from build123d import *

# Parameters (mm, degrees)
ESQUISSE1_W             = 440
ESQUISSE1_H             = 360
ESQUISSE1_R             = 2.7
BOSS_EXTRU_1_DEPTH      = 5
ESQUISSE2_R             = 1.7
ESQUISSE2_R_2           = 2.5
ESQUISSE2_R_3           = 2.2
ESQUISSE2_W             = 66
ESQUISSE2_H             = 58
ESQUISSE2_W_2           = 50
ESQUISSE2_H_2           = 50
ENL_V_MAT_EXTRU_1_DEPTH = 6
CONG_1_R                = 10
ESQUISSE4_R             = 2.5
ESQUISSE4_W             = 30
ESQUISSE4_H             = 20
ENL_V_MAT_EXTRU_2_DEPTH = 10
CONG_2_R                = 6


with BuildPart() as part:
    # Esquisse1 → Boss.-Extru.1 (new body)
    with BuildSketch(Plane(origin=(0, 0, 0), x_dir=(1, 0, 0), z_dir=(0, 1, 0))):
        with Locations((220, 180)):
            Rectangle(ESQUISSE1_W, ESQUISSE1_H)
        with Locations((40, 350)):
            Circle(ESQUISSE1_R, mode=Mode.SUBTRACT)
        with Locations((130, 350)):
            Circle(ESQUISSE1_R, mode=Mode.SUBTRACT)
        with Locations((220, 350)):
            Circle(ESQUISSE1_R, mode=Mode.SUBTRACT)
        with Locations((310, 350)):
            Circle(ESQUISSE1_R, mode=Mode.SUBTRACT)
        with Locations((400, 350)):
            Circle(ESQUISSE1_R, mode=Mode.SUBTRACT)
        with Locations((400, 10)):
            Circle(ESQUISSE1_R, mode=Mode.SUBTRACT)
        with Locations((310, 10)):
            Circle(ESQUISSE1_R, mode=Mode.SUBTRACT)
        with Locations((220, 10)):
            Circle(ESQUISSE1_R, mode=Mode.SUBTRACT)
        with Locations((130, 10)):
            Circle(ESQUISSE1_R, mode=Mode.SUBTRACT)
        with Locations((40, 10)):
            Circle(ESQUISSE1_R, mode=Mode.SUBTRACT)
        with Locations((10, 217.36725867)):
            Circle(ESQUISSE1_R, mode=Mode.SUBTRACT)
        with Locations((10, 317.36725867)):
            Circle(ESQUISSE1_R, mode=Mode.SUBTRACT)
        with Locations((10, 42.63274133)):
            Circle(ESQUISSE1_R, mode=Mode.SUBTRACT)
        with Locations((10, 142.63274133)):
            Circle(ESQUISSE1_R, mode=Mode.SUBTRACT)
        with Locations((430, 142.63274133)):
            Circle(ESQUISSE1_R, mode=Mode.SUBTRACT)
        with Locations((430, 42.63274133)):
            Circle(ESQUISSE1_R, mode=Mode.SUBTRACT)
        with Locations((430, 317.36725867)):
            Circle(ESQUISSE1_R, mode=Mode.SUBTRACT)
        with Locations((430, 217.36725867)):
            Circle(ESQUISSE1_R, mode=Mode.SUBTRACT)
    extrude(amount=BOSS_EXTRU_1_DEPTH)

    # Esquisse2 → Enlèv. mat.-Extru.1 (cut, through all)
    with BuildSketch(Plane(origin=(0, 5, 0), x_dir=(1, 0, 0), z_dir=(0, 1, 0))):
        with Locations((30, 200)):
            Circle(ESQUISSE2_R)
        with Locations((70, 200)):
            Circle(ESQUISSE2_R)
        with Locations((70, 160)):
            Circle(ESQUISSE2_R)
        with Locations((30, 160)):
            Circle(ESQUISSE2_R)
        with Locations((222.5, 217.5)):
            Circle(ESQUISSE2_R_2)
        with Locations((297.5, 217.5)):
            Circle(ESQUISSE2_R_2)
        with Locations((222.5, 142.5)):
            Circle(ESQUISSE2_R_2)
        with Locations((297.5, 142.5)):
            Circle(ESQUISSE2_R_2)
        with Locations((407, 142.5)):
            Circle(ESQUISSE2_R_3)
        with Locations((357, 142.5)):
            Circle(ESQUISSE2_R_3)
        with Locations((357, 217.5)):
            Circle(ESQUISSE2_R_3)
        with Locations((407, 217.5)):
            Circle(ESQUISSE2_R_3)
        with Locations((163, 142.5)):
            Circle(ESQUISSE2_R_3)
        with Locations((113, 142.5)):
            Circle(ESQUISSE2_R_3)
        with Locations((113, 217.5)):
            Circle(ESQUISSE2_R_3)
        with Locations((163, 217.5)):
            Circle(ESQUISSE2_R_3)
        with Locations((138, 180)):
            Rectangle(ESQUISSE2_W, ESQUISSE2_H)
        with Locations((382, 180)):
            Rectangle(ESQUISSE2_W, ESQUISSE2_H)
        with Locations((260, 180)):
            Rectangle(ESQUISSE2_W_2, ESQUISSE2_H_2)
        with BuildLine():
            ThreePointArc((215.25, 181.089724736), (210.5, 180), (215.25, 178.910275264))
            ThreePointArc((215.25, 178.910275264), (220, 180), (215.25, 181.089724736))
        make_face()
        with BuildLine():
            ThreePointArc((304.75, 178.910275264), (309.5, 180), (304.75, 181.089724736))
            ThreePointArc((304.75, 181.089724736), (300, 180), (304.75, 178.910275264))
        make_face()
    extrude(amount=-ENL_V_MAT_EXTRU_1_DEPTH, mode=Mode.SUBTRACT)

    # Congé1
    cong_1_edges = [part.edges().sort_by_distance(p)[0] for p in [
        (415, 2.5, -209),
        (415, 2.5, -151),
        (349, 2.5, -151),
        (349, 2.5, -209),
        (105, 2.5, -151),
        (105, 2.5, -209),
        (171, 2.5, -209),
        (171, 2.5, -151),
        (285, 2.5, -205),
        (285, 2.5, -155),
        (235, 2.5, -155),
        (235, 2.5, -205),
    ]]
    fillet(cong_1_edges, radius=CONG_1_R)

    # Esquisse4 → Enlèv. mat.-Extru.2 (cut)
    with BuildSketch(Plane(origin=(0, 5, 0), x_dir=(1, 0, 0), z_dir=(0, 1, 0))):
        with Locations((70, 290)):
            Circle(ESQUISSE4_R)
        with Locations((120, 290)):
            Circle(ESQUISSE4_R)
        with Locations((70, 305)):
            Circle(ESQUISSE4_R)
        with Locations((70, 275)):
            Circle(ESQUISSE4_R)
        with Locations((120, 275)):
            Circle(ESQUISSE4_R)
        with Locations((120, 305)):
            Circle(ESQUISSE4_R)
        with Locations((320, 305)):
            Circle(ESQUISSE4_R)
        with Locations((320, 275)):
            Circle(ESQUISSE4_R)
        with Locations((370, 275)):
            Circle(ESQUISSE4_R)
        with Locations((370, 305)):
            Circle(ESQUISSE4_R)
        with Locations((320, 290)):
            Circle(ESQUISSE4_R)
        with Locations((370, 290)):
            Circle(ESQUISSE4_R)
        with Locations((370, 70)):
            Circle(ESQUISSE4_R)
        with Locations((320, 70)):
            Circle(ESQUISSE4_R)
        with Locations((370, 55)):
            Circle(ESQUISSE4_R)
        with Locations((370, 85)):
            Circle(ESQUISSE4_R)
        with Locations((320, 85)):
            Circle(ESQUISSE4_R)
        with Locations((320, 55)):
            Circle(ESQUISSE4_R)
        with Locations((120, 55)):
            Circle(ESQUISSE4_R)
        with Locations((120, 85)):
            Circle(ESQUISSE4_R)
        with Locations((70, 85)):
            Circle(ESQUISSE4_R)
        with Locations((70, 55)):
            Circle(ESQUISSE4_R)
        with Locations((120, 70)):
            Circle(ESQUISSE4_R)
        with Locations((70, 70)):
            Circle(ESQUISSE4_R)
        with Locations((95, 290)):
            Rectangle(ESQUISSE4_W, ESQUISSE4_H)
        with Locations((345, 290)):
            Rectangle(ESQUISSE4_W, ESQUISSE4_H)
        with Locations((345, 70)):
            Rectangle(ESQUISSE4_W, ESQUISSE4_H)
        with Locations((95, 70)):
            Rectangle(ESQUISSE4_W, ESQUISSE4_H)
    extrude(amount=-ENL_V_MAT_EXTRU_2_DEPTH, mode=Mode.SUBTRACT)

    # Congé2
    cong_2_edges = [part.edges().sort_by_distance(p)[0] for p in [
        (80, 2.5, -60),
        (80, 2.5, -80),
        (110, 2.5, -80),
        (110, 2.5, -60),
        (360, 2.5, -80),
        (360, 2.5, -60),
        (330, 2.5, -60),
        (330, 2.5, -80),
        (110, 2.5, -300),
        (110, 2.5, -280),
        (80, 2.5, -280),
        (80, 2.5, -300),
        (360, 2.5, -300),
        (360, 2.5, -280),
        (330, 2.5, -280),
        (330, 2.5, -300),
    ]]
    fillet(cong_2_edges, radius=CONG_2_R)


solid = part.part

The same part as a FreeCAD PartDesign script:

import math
import FreeCAD as App
import Part
import Sketcher

V = App.Vector
Q = App.Units.Quantity


def edges_at(feature, points):
    """Names of the edges that pass closest to the given points."""
    edges = feature.Shape.Edges
    near = lambda p: min(range(len(edges)), key=lambda i: edges[i].distToShape(Part.Vertex(*p))[0])
    return sorted({f"Edge{near(p) + 1}" for p in points})


def add_polygon(sketch, points):
    """Adds a closed chain of lines whose ends are joined by coincident constraints."""
    first, n = sketch.GeometryCount, len(points)
    for a, b in zip(points, points[1:] + points[:1]):
        sketch.addGeometry(Part.LineSegment(App.Vector(*a, 0), App.Vector(*b, 0)), False)
    for i in range(n):
        sketch.addConstraint(Sketcher.Constraint("Coincident", first + i, 2, first + (i + 1) % n, 1))

doc = App.newDocument("Part")
body = doc.addObject("PartDesign::Body", "Body")

# Sketch on XZ plane
sketch1 = body.newObject("Sketcher::SketchObject", "Sketch")
sketch1.AttachmentSupport = (doc.getObject("XZ_Plane"), [""])
sketch1.MapMode = "FlatFace"
add_polygon(sketch1, [(0, -360), (0, 0), (440, 0), (440, -360)])  # lines 0-3
sketch1.addGeometry(Part.Circle(V(40, -10, 0), V(0, 0, 1), 2.7), False)  # 4
sketch1.addGeometry(Part.Circle(V(10, -42.632741, 0), V(0, 0, 1), 2.7), False)  # 5
sketch1.addGeometry(Part.Circle(V(130, -10, 0), V(0, 0, 1), 2.7), False)  # 6
sketch1.addGeometry(Part.Circle(V(10, -142.632741, 0), V(0, 0, 1), 2.7), False)  # 7
sketch1.addGeometry(Part.Circle(V(220, -10, 0), V(0, 0, 1), 2.7), False)  # 8
sketch1.addGeometry(Part.Circle(V(310, -10, 0), V(0, 0, 1), 2.7), False)  # 9
sketch1.addGeometry(Part.Circle(V(400, -10, 0), V(0, 0, 1), 2.7), False)  # 10
sketch1.addGeometry(Part.Circle(V(430, -42.632741, 0), V(0, 0, 1), 2.7), False)  # 11
sketch1.addGeometry(Part.Circle(V(430, -142.632741, 0), V(0, 0, 1), 2.7), False)  # 12
sketch1.addGeometry(Part.Circle(V(10, -217.367259, 0), V(0, 0, 1), 2.7), False)  # 13
sketch1.addGeometry(Part.Circle(V(10, -317.367259, 0), V(0, 0, 1), 2.7), False)  # 14
sketch1.addGeometry(Part.Circle(V(40, -350, 0), V(0, 0, 1), 2.7), False)  # 15
sketch1.addGeometry(Part.Circle(V(130, -350, 0), V(0, 0, 1), 2.7), False)  # 16
sketch1.addGeometry(Part.Circle(V(430, -217.367259, 0), V(0, 0, 1), 2.7), False)  # 17
sketch1.addGeometry(Part.Circle(V(220, -350, 0), V(0, 0, 1), 2.7), False)  # 18
sketch1.addGeometry(Part.Circle(V(310, -350, 0), V(0, 0, 1), 2.7), False)  # 19
sketch1.addGeometry(Part.Circle(V(430, -317.367259, 0), V(0, 0, 1), 2.7), False)  # 20
sketch1.addGeometry(Part.Circle(V(400, -350, 0), V(0, 0, 1), 2.7), False)  # 21
sketch1.addConstraint([
    Sketcher.Constraint("Vertical", 0),
    Sketcher.Constraint("Horizontal", 1),
    Sketcher.Constraint("Vertical", 2),
    Sketcher.Constraint("Horizontal", 3),
    Sketcher.Constraint("Coincident", 0, 2, -1, 1),
    Sketcher.Constraint("Equal", 4, 5),
    Sketcher.Constraint("Equal", 5, 6),
    Sketcher.Constraint("Equal", 6, 7),
    Sketcher.Constraint("Equal", 7, 8),
    Sketcher.Constraint("Equal", 8, 9),
    Sketcher.Constraint("Equal", 9, 10),
    Sketcher.Constraint("Equal", 10, 11),
    Sketcher.Constraint("Equal", 11, 12),
    Sketcher.Constraint("Equal", 12, 13),
    Sketcher.Constraint("Equal", 13, 14),
    Sketcher.Constraint("Equal", 14, 15),
    Sketcher.Constraint("Equal", 15, 16),
    Sketcher.Constraint("Equal", 16, 17),
    Sketcher.Constraint("Equal", 17, 18),
    Sketcher.Constraint("Equal", 18, 19),
    Sketcher.Constraint("Equal", 19, 20),
    Sketcher.Constraint("Equal", 20, 21),
    Sketcher.Constraint("Horizontal", 4, 3, 6, 3),
    Sketcher.Constraint("Horizontal", 6, 3, 8, 3),
    Sketcher.Constraint("Horizontal", 8, 3, 9, 3),
    Sketcher.Constraint("Horizontal", 9, 3, 10, 3),
    Sketcher.Constraint("Horizontal", 5, 3, 11, 3),
    Sketcher.Constraint("Horizontal", 7, 3, 12, 3),
    Sketcher.Constraint("Horizontal", 15, 3, 16, 3),
    Sketcher.Constraint("Horizontal", 13, 3, 17, 3),
    Sketcher.Constraint("Horizontal", 16, 3, 18, 3),
    Sketcher.Constraint("Horizontal", 18, 3, 19, 3),
    Sketcher.Constraint("Horizontal", 14, 3, 20, 3),
    Sketcher.Constraint("Horizontal", 19, 3, 21, 3),
    Sketcher.Constraint("Vertical", 5, 3, 7, 3),
    Sketcher.Constraint("Vertical", 11, 3, 12, 3),
    Sketcher.Constraint("Vertical", 7, 3, 13, 3),
    Sketcher.Constraint("Vertical", 13, 3, 14, 3),
    Sketcher.Constraint("Vertical", 4, 3, 15, 3),
    Sketcher.Constraint("Vertical", 6, 3, 16, 3),
    Sketcher.Constraint("Vertical", 12, 3, 17, 3),
    Sketcher.Constraint("Vertical", 8, 3, 18, 3),
    Sketcher.Constraint("Vertical", 9, 3, 19, 3),
    Sketcher.Constraint("Vertical", 17, 3, 20, 3),
    Sketcher.Constraint("Vertical", 10, 3, 21, 3),
    Sketcher.Constraint("Diameter", 4, Q("5.4 mm")),
    Sketcher.Constraint("DistanceX", 1, 1, 1, 2, Q("440 mm")),
    Sketcher.Constraint("DistanceY", 0, 1, 0, 2, Q("360 mm")),
    Sketcher.Constraint("DistanceX", -1, 1, 4, 3, Q("40 mm")),
    Sketcher.Constraint("DistanceY", 4, 3, -1, 1, Q("10 mm")),
    Sketcher.Constraint("DistanceX", -1, 1, 5, 3, Q("10 mm")),
    Sketcher.Constraint("DistanceX", -1, 1, 6, 3, Q("130 mm")),
    Sketcher.Constraint("DistanceX", -1, 1, 8, 3, Q("220 mm")),
    Sketcher.Constraint("DistanceX", -1, 1, 9, 3, Q("310 mm")),
    Sketcher.Constraint("DistanceX", -1, 1, 10, 3, Q("400 mm")),
    Sketcher.Constraint("DistanceX", -1, 1, 11, 3, Q("430 mm")),
    Sketcher.Constraint("DistanceY", 15, 3, -1, 1, Q("350 mm")),
    Sketcher.Constraint("DistanceY", 7, 3, 5, 3, Q("100 mm")),
    Sketcher.Constraint("DistanceY", 14, 3, 13, 3, Q("100 mm")),
    Sketcher.Constraint("DistanceY", 5, 3, -1, 1, Q("42.632741 mm")),
    Sketcher.Constraint("DistanceY", 13, 3, -1, 1, Q("217.367259 mm")),
])
pad1 = body.newObject("PartDesign::Pad", "Pad")
pad1.Profile = sketch1
pad1.Length = 5
pad1.Reversed = True

# Sketch on XZ plane
sketch2 = body.newObject("Sketcher::SketchObject", "Sketch001")
sketch2.AttachmentSupport = (doc.getObject("XZ_Plane"), [""])
sketch2.MapMode = "FlatFace"
sketch2.AttachmentOffset = App.Placement(V(0, 0, -5), App.Rotation())
sketch2.addGeometry(Part.Circle(V(30, -200, 0), V(0, 0, 1), 1.7), False)  # 0
sketch2.addGeometry(Part.Circle(V(70, -200, 0), V(0, 0, 1), 1.7), False)  # 1
sketch2.addGeometry(Part.Circle(V(70, -160, 0), V(0, 0, 1), 1.7), False)  # 2
sketch2.addGeometry(Part.Circle(V(30, -160, 0), V(0, 0, 1), 1.7), False)  # 3
sketch2.addGeometry(Part.Circle(V(222.5, -217.5, 0), V(0, 0, 1), 2.5), False)  # 4
sketch2.addGeometry(Part.Circle(V(297.5, -217.5, 0), V(0, 0, 1), 2.5), False)  # 5
sketch2.addGeometry(Part.Circle(V(222.5, -142.5, 0), V(0, 0, 1), 2.5), False)  # 6
sketch2.addGeometry(Part.Circle(V(297.5, -142.5, 0), V(0, 0, 1), 2.5), False)  # 7
sketch2.addGeometry(Part.Circle(V(407, -142.5, 0), V(0, 0, 1), 2.2), False)  # 8
sketch2.addGeometry(Part.Circle(V(357, -142.5, 0), V(0, 0, 1), 2.2), False)  # 9
sketch2.addGeometry(Part.Circle(V(357, -217.5, 0), V(0, 0, 1), 2.2), False)  # 10
sketch2.addGeometry(Part.Circle(V(407, -217.5, 0), V(0, 0, 1), 2.2), False)  # 11
sketch2.addGeometry(Part.Circle(V(163, -142.5, 0), V(0, 0, 1), 2.2), False)  # 12
sketch2.addGeometry(Part.Circle(V(113, -142.5, 0), V(0, 0, 1), 2.2), False)  # 13
sketch2.addGeometry(Part.Circle(V(113, -217.5, 0), V(0, 0, 1), 2.2), False)  # 14
sketch2.addGeometry(Part.Circle(V(163, -217.5, 0), V(0, 0, 1), 2.2), False)  # 15
add_polygon(sketch2, [(105, -209), (105, -151), (171, -151), (171, -209)])  # lines 16-19
add_polygon(sketch2, [(349, -209), (349, -151), (415, -151), (415, -209)])  # lines 20-23
add_polygon(sketch2, [(235, -205), (235, -155), (285, -155), (285, -205)])  # lines 24-27
sketch2.addGeometry(Part.ArcOfCircle(Part.Circle(V(213, -180, 0), V(0, 0, 1), 2.5), math.radians(25.841933), math.radians(334.158067)), False)  # 28
sketch2.addGeometry(Part.ArcOfCircle(Part.Circle(V(217.5, -180, 0), V(0, 0, 1), 2.5), math.radians(-154.158067), math.radians(154.158067)), False)  # 29
sketch2.addGeometry(Part.ArcOfCircle(Part.Circle(V(307, -180, 0), V(0, 0, 1), 2.5), math.radians(-154.158067), math.radians(154.158067)), False)  # 30
sketch2.addGeometry(Part.ArcOfCircle(Part.Circle(V(302.5, -180, 0), V(0, 0, 1), 2.5), math.radians(25.841933), math.radians(334.158067)), False)  # 31
sketch2.addConstraint([
    Sketcher.Constraint("Coincident", 28, 1, 29, 2),
    Sketcher.Constraint("Coincident", 29, 1, 28, 2),
    Sketcher.Constraint("Coincident", 30, 1, 31, 2),
    Sketcher.Constraint("Coincident", 31, 1, 30, 2),
    Sketcher.Constraint("Vertical", 16),
    Sketcher.Constraint("Horizontal", 17),
    Sketcher.Constraint("Vertical", 18),
    Sketcher.Constraint("Horizontal", 19),
    Sketcher.Constraint("Vertical", 20),
    Sketcher.Constraint("Horizontal", 21),
    Sketcher.Constraint("Vertical", 22),
    Sketcher.Constraint("Horizontal", 23),
    Sketcher.Constraint("Vertical", 24),
    Sketcher.Constraint("Horizontal", 25),
    Sketcher.Constraint("Vertical", 26),
    Sketcher.Constraint("Horizontal", 27),
    Sketcher.Constraint("Equal", 0, 1),
    Sketcher.Constraint("Equal", 1, 2),
    Sketcher.Constraint("Equal", 2, 3),
    Sketcher.Constraint("Equal", 4, 5),
    Sketcher.Constraint("Equal", 5, 6),
    Sketcher.Constraint("Equal", 6, 7),
    Sketcher.Constraint("Equal", 8, 9),
    Sketcher.Constraint("Equal", 9, 10),
    Sketcher.Constraint("Equal", 10, 11),
    Sketcher.Constraint("Equal", 11, 12),
    Sketcher.Constraint("Equal", 12, 13),
    Sketcher.Constraint("Equal", 13, 14),
    Sketcher.Constraint("Equal", 14, 15),
    Sketcher.Constraint("Equal", 7, 28),
    Sketcher.Constraint("Equal", 28, 29),
    Sketcher.Constraint("Equal", 29, 30),
    Sketcher.Constraint("Equal", 30, 31),
    Sketcher.Constraint("Horizontal", 0, 3, 1, 3),
    Sketcher.Constraint("Horizontal", 2, 3, 3, 3),
    Sketcher.Constraint("Horizontal", 4, 3, 5, 3),
    Sketcher.Constraint("Horizontal", 6, 3, 7, 3),
    Sketcher.Constraint("Horizontal", 7, 3, 8, 3),
    Sketcher.Constraint("Horizontal", 8, 3, 9, 3),
    Sketcher.Constraint("Horizontal", 5, 3, 10, 3),
    Sketcher.Constraint("Horizontal", 10, 3, 11, 3),
    Sketcher.Constraint("Horizontal", 9, 3, 12, 3),
    Sketcher.Constraint("Horizontal", 12, 3, 13, 3),
    Sketcher.Constraint("Horizontal", 11, 3, 14, 3),
    Sketcher.Constraint("Horizontal", 14, 3, 15, 3),
    Sketcher.Constraint("Horizontal", 28, 3, 29, 3),
    Sketcher.Constraint("Horizontal", 29, 3, 30, 3),
    Sketcher.Constraint("Horizontal", 30, 3, 31, 3),
    Sketcher.Constraint("Horizontal", 17, 2, 20, 2),
    Sketcher.Constraint("Horizontal", 19, 2, 22, 2),
    Sketcher.Constraint("Horizontal", 29, 1, 30, 1),
    Sketcher.Constraint("Vertical", 1, 3, 2, 3),
    Sketcher.Constraint("Vertical", 0, 3, 3, 3),
    Sketcher.Constraint("Vertical", 4, 3, 6, 3),
    Sketcher.Constraint("Vertical", 5, 3, 7, 3),
    Sketcher.Constraint("Vertical", 9, 3, 10, 3),
    Sketcher.Constraint("Vertical", 8, 3, 11, 3),
    Sketcher.Constraint("Vertical", 13, 3, 14, 3),
    Sketcher.Constraint("Vertical", 12, 3, 15, 3),
    Sketcher.Constraint("Equal", 19, 21),
    Sketcher.Constraint("Equal", 27, 24),
    Sketcher.Constraint("Diameter", 4, Q("5 mm")),
    Sketcher.Constraint("Diameter", 0, Q("3.4 mm")),
    Sketcher.Constraint("Diameter", 8, Q("4.4 mm")),
    Sketcher.Constraint("DistanceX", 17, 1, 17, 2, Q("66 mm")),
    Sketcher.Constraint("DistanceX", 25, 1, 25, 2, Q("50 mm")),
    Sketcher.Constraint("DistanceY", 16, 1, 16, 2, Q("58 mm")),
    Sketcher.Constraint("DistanceX", -1, 1, 0, 3, Q("30 mm")),
    Sketcher.Constraint("DistanceY", 0, 3, -1, 1, Q("200 mm")),
    Sketcher.Constraint("DistanceX", -1, 1, 1, 3, Q("70 mm")),
    Sketcher.Constraint("DistanceY", 2, 3, -1, 1, Q("160 mm")),
    Sketcher.Constraint("DistanceX", -1, 1, 8, 3, Q("407 mm")),
    Sketcher.Constraint("DistanceX", -1, 1, 9, 3, Q("357 mm")),
    Sketcher.Constraint("DistanceX", -1, 1, 12, 3, Q("163 mm")),
    Sketcher.Constraint("DistanceX", -1, 1, 13, 3, Q("113 mm")),
    Sketcher.Constraint("DistanceX", -1, 1, 28, 3, Q("213 mm")),
    Sketcher.Constraint("DistanceY", 28, 3, -1, 1, Q("180 mm")),
    Sketcher.Constraint("DistanceX", -1, 1, 30, 3, Q("307 mm")),
    Sketcher.Constraint("DistanceX", -1, 1, 16, 2, Q("105 mm")),
    Sketcher.Constraint("DistanceY", 16, 2, -1, 1, Q("151 mm")),
    Sketcher.Constraint("DistanceX", -1, 1, 20, 2, Q("349 mm")),
    Sketcher.Constraint("DistanceX", -1, 1, 24, 2, Q("235 mm")),
    Sketcher.Constraint("DistanceY", 24, 2, -1, 1, Q("155 mm")),
    Sketcher.Constraint("DistanceX", 4, 3, 5, 3, Q("75 mm")),
    Sketcher.Constraint("DistanceY", 4, 3, 6, 3, Q("75 mm")),
    Sketcher.Constraint("DistanceX", 29, 3, 4, 3, Q("5 mm")),
    Sketcher.Constraint("DistanceX", 5, 3, 31, 3, Q("5 mm")),
    Sketcher.Constraint("DistanceY", 4, 3, -1, 1, Q("217.5 mm")),
])
pocket1 = body.newObject("PartDesign::Pocket", "Pocket")
pocket1.Profile = sketch2
pocket1.Type = "ThroughAll"
pocket1.Reversed = True
doc.recompute()

fillet = body.newObject("PartDesign::Fillet", "Fillet")
fillet.Base = (pocket1, edges_at(pocket1, [
    (415, 2.5, -209),
    (415, 2.5, -151),
    (349, 2.5, -151),
    (349, 2.5, -209),
    (105, 2.5, -151),
    (105, 2.5, -209),
    (171, 2.5, -209),
    (171, 2.5, -151),
    (285, 2.5, -205),
    (285, 2.5, -155),
    (235, 2.5, -155),
    (235, 2.5, -205),
]))
fillet.Radius = 10

# Sketch on XZ plane
sketch3 = body.newObject("Sketcher::SketchObject", "Sketch002")
sketch3.AttachmentSupport = (doc.getObject("XZ_Plane"), [""])
sketch3.MapMode = "FlatFace"
sketch3.AttachmentOffset = App.Placement(V(0, 0, -5), App.Rotation())
sketch3.addGeometry(Part.Circle(V(70, -290, 0), V(0, 0, 1), 2.5), False)  # 0
sketch3.addGeometry(Part.Circle(V(120, -290, 0), V(0, 0, 1), 2.5), False)  # 1
sketch3.addGeometry(Part.Circle(V(70, -305, 0), V(0, 0, 1), 2.5), False)  # 2
sketch3.addGeometry(Part.Circle(V(70, -275, 0), V(0, 0, 1), 2.5), False)  # 3
sketch3.addGeometry(Part.Circle(V(120, -275, 0), V(0, 0, 1), 2.5), False)  # 4
sketch3.addGeometry(Part.Circle(V(120, -305, 0), V(0, 0, 1), 2.5), False)  # 5
sketch3.addGeometry(Part.Circle(V(320, -305, 0), V(0, 0, 1), 2.5), False)  # 6
sketch3.addGeometry(Part.Circle(V(320, -275, 0), V(0, 0, 1), 2.5), False)  # 7
sketch3.addGeometry(Part.Circle(V(370, -275, 0), V(0, 0, 1), 2.5), False)  # 8
sketch3.addGeometry(Part.Circle(V(370, -305, 0), V(0, 0, 1), 2.5), False)  # 9
sketch3.addGeometry(Part.Circle(V(320, -290, 0), V(0, 0, 1), 2.5), False)  # 10
sketch3.addGeometry(Part.Circle(V(370, -290, 0), V(0, 0, 1), 2.5), False)  # 11
sketch3.addGeometry(Part.Circle(V(370, -70, 0), V(0, 0, 1), 2.5), False)  # 12
sketch3.addGeometry(Part.Circle(V(320, -70, 0), V(0, 0, 1), 2.5), False)  # 13
sketch3.addGeometry(Part.Circle(V(370, -55, 0), V(0, 0, 1), 2.5), False)  # 14
sketch3.addGeometry(Part.Circle(V(370, -85, 0), V(0, 0, 1), 2.5), False)  # 15
sketch3.addGeometry(Part.Circle(V(320, -85, 0), V(0, 0, 1), 2.5), False)  # 16
sketch3.addGeometry(Part.Circle(V(320, -55, 0), V(0, 0, 1), 2.5), False)  # 17
sketch3.addGeometry(Part.Circle(V(120, -55, 0), V(0, 0, 1), 2.5), False)  # 18
sketch3.addGeometry(Part.Circle(V(120, -85, 0), V(0, 0, 1), 2.5), False)  # 19
sketch3.addGeometry(Part.Circle(V(70, -85, 0), V(0, 0, 1), 2.5), False)  # 20
sketch3.addGeometry(Part.Circle(V(70, -55, 0), V(0, 0, 1), 2.5), False)  # 21
sketch3.addGeometry(Part.Circle(V(120, -70, 0), V(0, 0, 1), 2.5), False)  # 22
sketch3.addGeometry(Part.Circle(V(70, -70, 0), V(0, 0, 1), 2.5), False)  # 23
add_polygon(sketch3, [(80, -300), (80, -280), (110, -280), (110, -300)])  # lines 24-27
add_polygon(sketch3, [(330, -300), (330, -280), (360, -280), (360, -300)])  # lines 28-31
add_polygon(sketch3, [(330, -80), (330, -60), (360, -60), (360, -80)])  # lines 32-35
add_polygon(sketch3, [(80, -80), (80, -60), (110, -60), (110, -80)])  # lines 36-39
sketch3.addConstraint([
    Sketcher.Constraint("Vertical", 24),
    Sketcher.Constraint("Horizontal", 25),
    Sketcher.Constraint("Vertical", 26),
    Sketcher.Constraint("Horizontal", 27),
    Sketcher.Constraint("Vertical", 28),
    Sketcher.Constraint("Horizontal", 29),
    Sketcher.Constraint("Vertical", 30),
    Sketcher.Constraint("Horizontal", 31),
    Sketcher.Constraint("Vertical", 32),
    Sketcher.Constraint("Horizontal", 33),
    Sketcher.Constraint("Vertical", 34),
    Sketcher.Constraint("Horizontal", 35),
    Sketcher.Constraint("Vertical", 36),
    Sketcher.Constraint("Horizontal", 37),
    Sketcher.Constraint("Vertical", 38),
    Sketcher.Constraint("Horizontal", 39),
    Sketcher.Constraint("Equal", 0, 1),
    Sketcher.Constraint("Equal", 1, 2),
    Sketcher.Constraint("Equal", 2, 3),
    Sketcher.Constraint("Equal", 3, 4),
    Sketcher.Constraint("Equal", 4, 5),
    Sketcher.Constraint("Equal", 5, 6),
    Sketcher.Constraint("Equal", 6, 7),
    Sketcher.Constraint("Equal", 7, 8),
    Sketcher.Constraint("Equal", 8, 9),
    Sketcher.Constraint("Equal", 9, 10),
    Sketcher.Constraint("Equal", 10, 11),
    Sketcher.Constraint("Equal", 11, 12),
    Sketcher.Constraint("Equal", 12, 13),
    Sketcher.Constraint("Equal", 13, 14),
    Sketcher.Constraint("Equal", 14, 15),
    Sketcher.Constraint("Equal", 15, 16),
    Sketcher.Constraint("Equal", 16, 17),
    Sketcher.Constraint("Equal", 17, 18),
    Sketcher.Constraint("Equal", 18, 19),
    Sketcher.Constraint("Equal", 19, 20),
    Sketcher.Constraint("Equal", 20, 21),
    Sketcher.Constraint("Equal", 21, 22),
    Sketcher.Constraint("Equal", 22, 23),
    Sketcher.Constraint("Horizontal", 0, 3, 1, 3),
    Sketcher.Constraint("Horizontal", 3, 3, 4, 3),
    Sketcher.Constraint("Horizontal", 2, 3, 5, 3),
    Sketcher.Constraint("Horizontal", 5, 3, 6, 3),
    Sketcher.Constraint("Horizontal", 4, 3, 7, 3),
    Sketcher.Constraint("Horizontal", 7, 3, 8, 3),
    Sketcher.Constraint("Horizontal", 6, 3, 9, 3),
    Sketcher.Constraint("Horizontal", 1, 3, 10, 3),
    Sketcher.Constraint("Horizontal", 10, 3, 11, 3),
    Sketcher.Constraint("Horizontal", 12, 3, 13, 3),
    Sketcher.Constraint("Horizontal", 15, 3, 16, 3),
    Sketcher.Constraint("Horizontal", 14, 3, 17, 3),
    Sketcher.Constraint("Horizontal", 17, 3, 18, 3),
    Sketcher.Constraint("Horizontal", 16, 3, 19, 3),
    Sketcher.Constraint("Horizontal", 19, 3, 20, 3),
    Sketcher.Constraint("Horizontal", 18, 3, 21, 3),
    Sketcher.Constraint("Horizontal", 13, 3, 22, 3),
    Sketcher.Constraint("Horizontal", 22, 3, 23, 3),
    Sketcher.Constraint("Horizontal", 25, 2, 28, 2),
    Sketcher.Constraint("Horizontal", 27, 2, 30, 2),
    Sketcher.Constraint("Horizontal", 33, 2, 36, 2),
    Sketcher.Constraint("Horizontal", 35, 2, 38, 2),
    Sketcher.Constraint("Vertical", 0, 3, 2, 3),
    Sketcher.Constraint("Vertical", 2, 3, 3, 3),
    Sketcher.Constraint("Vertical", 1, 3, 4, 3),
    Sketcher.Constraint("Vertical", 4, 3, 5, 3),
    Sketcher.Constraint("Vertical", 6, 3, 7, 3),
    Sketcher.Constraint("Vertical", 8, 3, 9, 3),
    Sketcher.Constraint("Vertical", 7, 3, 10, 3),
    Sketcher.Constraint("Vertical", 9, 3, 11, 3),
    Sketcher.Constraint("Vertical", 11, 3, 12, 3),
    Sketcher.Constraint("Vertical", 10, 3, 13, 3),
    Sketcher.Constraint("Vertical", 12, 3, 14, 3),
    Sketcher.Constraint("Vertical", 14, 3, 15, 3),
    Sketcher.Constraint("Vertical", 13, 3, 16, 3),
    Sketcher.Constraint("Vertical", 16, 3, 17, 3),
    Sketcher.Constraint("Vertical", 5, 3, 18, 3),
    Sketcher.Constraint("Vertical", 18, 3, 19, 3),
    Sketcher.Constraint("Vertical", 3, 3, 20, 3),
    Sketcher.Constraint("Vertical", 20, 3, 21, 3),
    Sketcher.Constraint("Vertical", 19, 3, 22, 3),
    Sketcher.Constraint("Vertical", 21, 3, 23, 3),
    Sketcher.Constraint("Vertical", 31, 2, 32, 2),
    Sketcher.Constraint("Vertical", 30, 2, 33, 2),
    Sketcher.Constraint("Vertical", 27, 2, 36, 2),
    Sketcher.Constraint("Vertical", 26, 2, 37, 2),
    Sketcher.Constraint("Equal", 27, 29),
    Sketcher.Constraint("Equal", 30, 32),
    Sketcher.Constraint("Diameter", 0, Q("5 mm")),
    Sketcher.Constraint("DistanceX", 25, 1, 25, 2, Q("30 mm")),
    Sketcher.Constraint("DistanceY", 24, 1, 24, 2, Q("20 mm")),
    Sketcher.Constraint("DistanceX", -1, 1, 0, 3, Q("70 mm")),
    Sketcher.Constraint("DistanceY", 0, 3, -1, 1, Q("290 mm")),
    Sketcher.Constraint("DistanceX", -1, 1, 1, 3, Q("120 mm")),
    Sketcher.Constraint("DistanceY", 2, 3, -1, 1, Q("305 mm")),
    Sketcher.Constraint("DistanceY", 3, 3, -1, 1, Q("275 mm")),
    Sketcher.Constraint("DistanceX", -1, 1, 6, 3, Q("320 mm")),
    Sketcher.Constraint("DistanceX", -1, 1, 8, 3, Q("370 mm")),
    Sketcher.Constraint("DistanceY", 12, 3, -1, 1, Q("70 mm")),
    Sketcher.Constraint("DistanceY", 14, 3, -1, 1, Q("55 mm")),
    Sketcher.Constraint("DistanceY", 15, 3, -1, 1, Q("85 mm")),
    Sketcher.Constraint("DistanceX", -1, 1, 24, 2, Q("80 mm")),
    Sketcher.Constraint("DistanceY", 24, 2, -1, 1, Q("280 mm")),
    Sketcher.Constraint("DistanceX", -1, 1, 28, 2, Q("330 mm")),
    Sketcher.Constraint("DistanceY", 32, 2, -1, 1, Q("60 mm")),
])
pocket2 = body.newObject("PartDesign::Pocket", "Pocket001")
pocket2.Profile = sketch3
pocket2.Length = 10
pocket2.Reversed = True
doc.recompute()

fillet2 = body.newObject("PartDesign::Fillet", "Fillet001")
fillet2.Base = (pocket2, edges_at(pocket2, [
    (80, 2.5, -60),
    (80, 2.5, -80),
    (110, 2.5, -80),
    (110, 2.5, -60),
    (360, 2.5, -80),
    (360, 2.5, -60),
    (330, 2.5, -60),
    (330, 2.5, -80),
    (110, 2.5, -300),
    (110, 2.5, -280),
    (80, 2.5, -280),
    (80, 2.5, -300),
    (360, 2.5, -300),
    (360, 2.5, -280),
    (330, 2.5, -280),
    (330, 2.5, -300),
]))
fillet2.Radius = 6

doc.recompute()
